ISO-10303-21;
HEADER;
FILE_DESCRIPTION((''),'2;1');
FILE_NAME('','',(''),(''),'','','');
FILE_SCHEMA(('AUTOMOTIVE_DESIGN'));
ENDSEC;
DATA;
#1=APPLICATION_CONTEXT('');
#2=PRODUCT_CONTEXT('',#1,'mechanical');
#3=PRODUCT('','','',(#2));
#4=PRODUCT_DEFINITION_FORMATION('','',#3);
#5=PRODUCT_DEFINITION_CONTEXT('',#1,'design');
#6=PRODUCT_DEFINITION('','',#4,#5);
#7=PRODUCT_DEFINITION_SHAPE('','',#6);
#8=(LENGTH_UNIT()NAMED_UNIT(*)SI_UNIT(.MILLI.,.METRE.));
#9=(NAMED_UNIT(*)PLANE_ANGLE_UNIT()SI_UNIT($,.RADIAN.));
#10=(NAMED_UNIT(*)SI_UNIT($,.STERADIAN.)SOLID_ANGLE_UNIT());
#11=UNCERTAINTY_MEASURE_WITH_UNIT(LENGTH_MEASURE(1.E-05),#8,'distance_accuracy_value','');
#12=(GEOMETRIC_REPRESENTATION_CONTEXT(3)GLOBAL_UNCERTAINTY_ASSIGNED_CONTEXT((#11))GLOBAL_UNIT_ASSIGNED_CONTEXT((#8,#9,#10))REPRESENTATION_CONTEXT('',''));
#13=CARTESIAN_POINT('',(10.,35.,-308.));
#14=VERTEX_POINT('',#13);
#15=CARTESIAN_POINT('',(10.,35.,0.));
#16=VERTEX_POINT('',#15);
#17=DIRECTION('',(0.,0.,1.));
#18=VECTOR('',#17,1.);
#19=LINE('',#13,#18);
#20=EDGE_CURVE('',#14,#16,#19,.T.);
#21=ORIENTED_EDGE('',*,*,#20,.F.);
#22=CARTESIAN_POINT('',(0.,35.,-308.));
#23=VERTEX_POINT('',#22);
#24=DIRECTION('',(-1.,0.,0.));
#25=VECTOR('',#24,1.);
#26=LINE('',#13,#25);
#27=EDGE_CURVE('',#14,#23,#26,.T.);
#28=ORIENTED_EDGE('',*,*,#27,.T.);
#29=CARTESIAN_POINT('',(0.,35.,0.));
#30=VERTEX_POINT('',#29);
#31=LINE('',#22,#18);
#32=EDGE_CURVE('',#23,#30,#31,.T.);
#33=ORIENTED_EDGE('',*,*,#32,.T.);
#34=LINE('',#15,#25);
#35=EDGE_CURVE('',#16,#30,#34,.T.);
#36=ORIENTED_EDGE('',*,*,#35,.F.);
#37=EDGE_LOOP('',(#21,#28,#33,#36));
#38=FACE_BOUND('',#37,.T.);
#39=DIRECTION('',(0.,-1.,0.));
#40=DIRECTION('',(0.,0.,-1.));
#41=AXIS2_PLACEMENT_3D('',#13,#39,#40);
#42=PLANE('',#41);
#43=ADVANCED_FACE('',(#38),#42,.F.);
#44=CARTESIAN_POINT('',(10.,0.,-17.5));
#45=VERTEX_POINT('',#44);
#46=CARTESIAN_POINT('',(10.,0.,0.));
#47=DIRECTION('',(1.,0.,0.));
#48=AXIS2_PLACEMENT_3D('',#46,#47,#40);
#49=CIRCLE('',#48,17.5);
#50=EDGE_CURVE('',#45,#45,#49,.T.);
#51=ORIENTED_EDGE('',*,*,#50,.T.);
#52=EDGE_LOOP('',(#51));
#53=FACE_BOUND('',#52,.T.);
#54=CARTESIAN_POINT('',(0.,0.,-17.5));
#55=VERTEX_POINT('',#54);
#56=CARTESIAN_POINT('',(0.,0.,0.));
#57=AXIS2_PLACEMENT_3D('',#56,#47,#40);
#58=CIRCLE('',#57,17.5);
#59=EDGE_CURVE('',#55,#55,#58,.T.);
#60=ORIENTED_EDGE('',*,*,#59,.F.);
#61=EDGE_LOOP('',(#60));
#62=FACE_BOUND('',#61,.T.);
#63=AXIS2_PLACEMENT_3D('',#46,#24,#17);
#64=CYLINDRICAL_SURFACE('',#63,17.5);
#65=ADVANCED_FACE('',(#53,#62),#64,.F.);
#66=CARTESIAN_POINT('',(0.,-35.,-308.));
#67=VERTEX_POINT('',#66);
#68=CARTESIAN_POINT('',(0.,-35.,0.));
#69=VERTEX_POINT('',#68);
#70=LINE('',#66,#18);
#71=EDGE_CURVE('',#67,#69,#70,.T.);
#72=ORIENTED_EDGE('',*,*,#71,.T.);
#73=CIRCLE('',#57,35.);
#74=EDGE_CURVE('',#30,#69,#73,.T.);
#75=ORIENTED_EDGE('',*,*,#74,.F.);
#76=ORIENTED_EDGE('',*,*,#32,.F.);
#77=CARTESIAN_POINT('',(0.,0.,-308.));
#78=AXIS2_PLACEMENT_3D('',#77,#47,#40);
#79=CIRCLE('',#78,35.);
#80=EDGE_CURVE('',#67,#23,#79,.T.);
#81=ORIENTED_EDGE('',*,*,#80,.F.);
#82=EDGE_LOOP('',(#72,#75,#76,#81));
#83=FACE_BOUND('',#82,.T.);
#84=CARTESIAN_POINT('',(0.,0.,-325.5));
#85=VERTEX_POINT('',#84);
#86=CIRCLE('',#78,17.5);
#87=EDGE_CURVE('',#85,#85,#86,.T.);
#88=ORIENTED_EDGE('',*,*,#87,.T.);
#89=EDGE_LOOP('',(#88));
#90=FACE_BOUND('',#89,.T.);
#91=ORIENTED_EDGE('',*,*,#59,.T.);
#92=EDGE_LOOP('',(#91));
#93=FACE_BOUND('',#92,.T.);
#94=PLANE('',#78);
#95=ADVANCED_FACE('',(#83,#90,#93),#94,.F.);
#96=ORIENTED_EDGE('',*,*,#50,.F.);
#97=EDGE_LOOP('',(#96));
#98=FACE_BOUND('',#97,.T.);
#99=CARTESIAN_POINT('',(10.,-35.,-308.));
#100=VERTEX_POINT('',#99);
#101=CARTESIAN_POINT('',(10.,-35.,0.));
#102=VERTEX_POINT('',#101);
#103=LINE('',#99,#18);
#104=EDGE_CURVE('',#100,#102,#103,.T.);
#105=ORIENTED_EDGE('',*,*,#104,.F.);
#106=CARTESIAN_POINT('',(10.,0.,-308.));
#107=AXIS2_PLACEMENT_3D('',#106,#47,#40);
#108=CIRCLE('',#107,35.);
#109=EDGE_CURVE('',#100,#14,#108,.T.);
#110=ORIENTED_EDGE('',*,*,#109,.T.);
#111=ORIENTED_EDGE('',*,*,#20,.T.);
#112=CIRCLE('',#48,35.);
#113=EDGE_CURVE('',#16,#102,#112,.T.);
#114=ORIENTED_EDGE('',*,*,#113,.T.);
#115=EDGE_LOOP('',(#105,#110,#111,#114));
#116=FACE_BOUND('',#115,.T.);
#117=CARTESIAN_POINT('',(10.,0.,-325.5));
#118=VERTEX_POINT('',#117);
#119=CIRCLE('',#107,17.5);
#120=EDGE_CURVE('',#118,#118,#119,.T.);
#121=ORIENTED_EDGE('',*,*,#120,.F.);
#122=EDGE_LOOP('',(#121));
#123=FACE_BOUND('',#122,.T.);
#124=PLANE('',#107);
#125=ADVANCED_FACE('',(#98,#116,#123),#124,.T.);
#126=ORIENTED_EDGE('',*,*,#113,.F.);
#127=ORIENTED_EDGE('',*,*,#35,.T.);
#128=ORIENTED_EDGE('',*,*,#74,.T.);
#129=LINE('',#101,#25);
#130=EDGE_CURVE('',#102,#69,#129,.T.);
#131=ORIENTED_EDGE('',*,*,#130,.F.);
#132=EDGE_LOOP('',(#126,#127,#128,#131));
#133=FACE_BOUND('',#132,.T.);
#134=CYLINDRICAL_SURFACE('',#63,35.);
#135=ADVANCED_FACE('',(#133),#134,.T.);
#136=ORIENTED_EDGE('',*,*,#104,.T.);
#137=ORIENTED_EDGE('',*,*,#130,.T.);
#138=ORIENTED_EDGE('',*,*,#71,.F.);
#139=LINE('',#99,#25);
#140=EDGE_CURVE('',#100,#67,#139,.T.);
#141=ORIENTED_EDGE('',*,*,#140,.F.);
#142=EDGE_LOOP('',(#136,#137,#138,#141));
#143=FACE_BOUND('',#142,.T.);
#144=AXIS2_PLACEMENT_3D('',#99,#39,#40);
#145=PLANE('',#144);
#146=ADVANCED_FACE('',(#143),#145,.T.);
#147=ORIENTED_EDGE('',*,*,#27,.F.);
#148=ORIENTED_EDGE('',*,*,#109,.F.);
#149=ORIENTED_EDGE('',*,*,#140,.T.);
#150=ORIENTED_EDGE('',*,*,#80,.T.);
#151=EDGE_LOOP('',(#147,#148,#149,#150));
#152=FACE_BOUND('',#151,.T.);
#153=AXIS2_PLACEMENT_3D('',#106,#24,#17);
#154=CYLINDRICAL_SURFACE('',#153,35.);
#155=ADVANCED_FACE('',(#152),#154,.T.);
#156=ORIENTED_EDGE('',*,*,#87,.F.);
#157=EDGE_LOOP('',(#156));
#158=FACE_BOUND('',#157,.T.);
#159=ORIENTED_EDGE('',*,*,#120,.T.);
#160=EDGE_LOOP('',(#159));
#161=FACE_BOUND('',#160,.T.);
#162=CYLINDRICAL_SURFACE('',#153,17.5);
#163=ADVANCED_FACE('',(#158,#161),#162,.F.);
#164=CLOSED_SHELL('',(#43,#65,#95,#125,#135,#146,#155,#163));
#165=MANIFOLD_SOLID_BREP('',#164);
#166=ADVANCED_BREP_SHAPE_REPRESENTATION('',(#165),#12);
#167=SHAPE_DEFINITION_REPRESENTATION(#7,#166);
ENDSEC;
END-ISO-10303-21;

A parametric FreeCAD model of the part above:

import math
import FreeCAD as App
import Part
import Sketcher
Q = App.Units.Quantity

doc = App.newDocument("Part")
body = doc.addObject("PartDesign::Body", "Body")

# Sketch on YZ plane
sketch1 = doc.addObject("Sketcher::SketchObject", "Sketch")
body.addObject(sketch1)
sketch1.AttachmentSupport = (doc.YZ_Plane, [""])
sketch1.MapMode = "FlatFace"
sketch1.addGeometry(Part.LineSegment(App.Vector(-35, 0, 0), App.Vector(-35, -308, 0)), False)
sketch1.addGeometry(Part.ArcOfCircle(Part.Circle(App.Vector(0, -308, 0), App.Vector(0, 0, 1), 35), math.radians(180), math.radians(360)), False)
sketch1.addGeometry(Part.LineSegment(App.Vector(35, -308, 0), App.Vector(35, 0, 0)), False)
sketch1.addGeometry(Part.ArcOfCircle(Part.Circle(App.Vector(0, 0, 0), App.Vector(0, 0, 1), 35), math.radians(0), math.radians(180)), False)
sketch1.addGeometry(Part.Circle(App.Vector(0, -308, 0), App.Vector(0, 0, 1), 18), False)
sketch1.addGeometry(Part.Circle(App.Vector(0, 0, 0), App.Vector(0, 0, 1), 18), False)
sketch1.addConstraint(Sketcher.Constraint("Tangent", 0, 2, 1, 1))
sketch1.addConstraint(Sketcher.Constraint("Tangent", 1, 2, 2, 1))
sketch1.addConstraint(Sketcher.Constraint("Tangent", 2, 2, 3, 1))
sketch1.addConstraint(Sketcher.Constraint("Tangent", 3, 2, 0, 1))
sketch1.addConstraint(Sketcher.Constraint("Vertical", 0))
sketch1.addConstraint(Sketcher.Constraint("Vertical", 2))
sketch1.addConstraint(Sketcher.Constraint("Coincident", 3, 3, -1, 1))
sketch1.addConstraint(Sketcher.Constraint("Coincident", 5, 3, -1, 1))
sketch1.addConstraint(Sketcher.Constraint("Coincident", 4, 3, 1, 3))
sketch1.addConstraint(Sketcher.Constraint("Equal", 4, 5))
sketch1.addConstraint(Sketcher.Constraint("Diameter", 4, Q("35 mm")))
sketch1.addConstraint(Sketcher.Constraint("Radius", 1, Q("35 mm")))
sketch1.addConstraint(Sketcher.Constraint("DistanceY", 0, 2, 0, 1, Q("308 mm")))
pad1 = doc.addObject("PartDesign::Pad", "Pad")
body.addObject(pad1)
pad1.Profile = sketch1
pad1.Length = 10

doc.recompute()
